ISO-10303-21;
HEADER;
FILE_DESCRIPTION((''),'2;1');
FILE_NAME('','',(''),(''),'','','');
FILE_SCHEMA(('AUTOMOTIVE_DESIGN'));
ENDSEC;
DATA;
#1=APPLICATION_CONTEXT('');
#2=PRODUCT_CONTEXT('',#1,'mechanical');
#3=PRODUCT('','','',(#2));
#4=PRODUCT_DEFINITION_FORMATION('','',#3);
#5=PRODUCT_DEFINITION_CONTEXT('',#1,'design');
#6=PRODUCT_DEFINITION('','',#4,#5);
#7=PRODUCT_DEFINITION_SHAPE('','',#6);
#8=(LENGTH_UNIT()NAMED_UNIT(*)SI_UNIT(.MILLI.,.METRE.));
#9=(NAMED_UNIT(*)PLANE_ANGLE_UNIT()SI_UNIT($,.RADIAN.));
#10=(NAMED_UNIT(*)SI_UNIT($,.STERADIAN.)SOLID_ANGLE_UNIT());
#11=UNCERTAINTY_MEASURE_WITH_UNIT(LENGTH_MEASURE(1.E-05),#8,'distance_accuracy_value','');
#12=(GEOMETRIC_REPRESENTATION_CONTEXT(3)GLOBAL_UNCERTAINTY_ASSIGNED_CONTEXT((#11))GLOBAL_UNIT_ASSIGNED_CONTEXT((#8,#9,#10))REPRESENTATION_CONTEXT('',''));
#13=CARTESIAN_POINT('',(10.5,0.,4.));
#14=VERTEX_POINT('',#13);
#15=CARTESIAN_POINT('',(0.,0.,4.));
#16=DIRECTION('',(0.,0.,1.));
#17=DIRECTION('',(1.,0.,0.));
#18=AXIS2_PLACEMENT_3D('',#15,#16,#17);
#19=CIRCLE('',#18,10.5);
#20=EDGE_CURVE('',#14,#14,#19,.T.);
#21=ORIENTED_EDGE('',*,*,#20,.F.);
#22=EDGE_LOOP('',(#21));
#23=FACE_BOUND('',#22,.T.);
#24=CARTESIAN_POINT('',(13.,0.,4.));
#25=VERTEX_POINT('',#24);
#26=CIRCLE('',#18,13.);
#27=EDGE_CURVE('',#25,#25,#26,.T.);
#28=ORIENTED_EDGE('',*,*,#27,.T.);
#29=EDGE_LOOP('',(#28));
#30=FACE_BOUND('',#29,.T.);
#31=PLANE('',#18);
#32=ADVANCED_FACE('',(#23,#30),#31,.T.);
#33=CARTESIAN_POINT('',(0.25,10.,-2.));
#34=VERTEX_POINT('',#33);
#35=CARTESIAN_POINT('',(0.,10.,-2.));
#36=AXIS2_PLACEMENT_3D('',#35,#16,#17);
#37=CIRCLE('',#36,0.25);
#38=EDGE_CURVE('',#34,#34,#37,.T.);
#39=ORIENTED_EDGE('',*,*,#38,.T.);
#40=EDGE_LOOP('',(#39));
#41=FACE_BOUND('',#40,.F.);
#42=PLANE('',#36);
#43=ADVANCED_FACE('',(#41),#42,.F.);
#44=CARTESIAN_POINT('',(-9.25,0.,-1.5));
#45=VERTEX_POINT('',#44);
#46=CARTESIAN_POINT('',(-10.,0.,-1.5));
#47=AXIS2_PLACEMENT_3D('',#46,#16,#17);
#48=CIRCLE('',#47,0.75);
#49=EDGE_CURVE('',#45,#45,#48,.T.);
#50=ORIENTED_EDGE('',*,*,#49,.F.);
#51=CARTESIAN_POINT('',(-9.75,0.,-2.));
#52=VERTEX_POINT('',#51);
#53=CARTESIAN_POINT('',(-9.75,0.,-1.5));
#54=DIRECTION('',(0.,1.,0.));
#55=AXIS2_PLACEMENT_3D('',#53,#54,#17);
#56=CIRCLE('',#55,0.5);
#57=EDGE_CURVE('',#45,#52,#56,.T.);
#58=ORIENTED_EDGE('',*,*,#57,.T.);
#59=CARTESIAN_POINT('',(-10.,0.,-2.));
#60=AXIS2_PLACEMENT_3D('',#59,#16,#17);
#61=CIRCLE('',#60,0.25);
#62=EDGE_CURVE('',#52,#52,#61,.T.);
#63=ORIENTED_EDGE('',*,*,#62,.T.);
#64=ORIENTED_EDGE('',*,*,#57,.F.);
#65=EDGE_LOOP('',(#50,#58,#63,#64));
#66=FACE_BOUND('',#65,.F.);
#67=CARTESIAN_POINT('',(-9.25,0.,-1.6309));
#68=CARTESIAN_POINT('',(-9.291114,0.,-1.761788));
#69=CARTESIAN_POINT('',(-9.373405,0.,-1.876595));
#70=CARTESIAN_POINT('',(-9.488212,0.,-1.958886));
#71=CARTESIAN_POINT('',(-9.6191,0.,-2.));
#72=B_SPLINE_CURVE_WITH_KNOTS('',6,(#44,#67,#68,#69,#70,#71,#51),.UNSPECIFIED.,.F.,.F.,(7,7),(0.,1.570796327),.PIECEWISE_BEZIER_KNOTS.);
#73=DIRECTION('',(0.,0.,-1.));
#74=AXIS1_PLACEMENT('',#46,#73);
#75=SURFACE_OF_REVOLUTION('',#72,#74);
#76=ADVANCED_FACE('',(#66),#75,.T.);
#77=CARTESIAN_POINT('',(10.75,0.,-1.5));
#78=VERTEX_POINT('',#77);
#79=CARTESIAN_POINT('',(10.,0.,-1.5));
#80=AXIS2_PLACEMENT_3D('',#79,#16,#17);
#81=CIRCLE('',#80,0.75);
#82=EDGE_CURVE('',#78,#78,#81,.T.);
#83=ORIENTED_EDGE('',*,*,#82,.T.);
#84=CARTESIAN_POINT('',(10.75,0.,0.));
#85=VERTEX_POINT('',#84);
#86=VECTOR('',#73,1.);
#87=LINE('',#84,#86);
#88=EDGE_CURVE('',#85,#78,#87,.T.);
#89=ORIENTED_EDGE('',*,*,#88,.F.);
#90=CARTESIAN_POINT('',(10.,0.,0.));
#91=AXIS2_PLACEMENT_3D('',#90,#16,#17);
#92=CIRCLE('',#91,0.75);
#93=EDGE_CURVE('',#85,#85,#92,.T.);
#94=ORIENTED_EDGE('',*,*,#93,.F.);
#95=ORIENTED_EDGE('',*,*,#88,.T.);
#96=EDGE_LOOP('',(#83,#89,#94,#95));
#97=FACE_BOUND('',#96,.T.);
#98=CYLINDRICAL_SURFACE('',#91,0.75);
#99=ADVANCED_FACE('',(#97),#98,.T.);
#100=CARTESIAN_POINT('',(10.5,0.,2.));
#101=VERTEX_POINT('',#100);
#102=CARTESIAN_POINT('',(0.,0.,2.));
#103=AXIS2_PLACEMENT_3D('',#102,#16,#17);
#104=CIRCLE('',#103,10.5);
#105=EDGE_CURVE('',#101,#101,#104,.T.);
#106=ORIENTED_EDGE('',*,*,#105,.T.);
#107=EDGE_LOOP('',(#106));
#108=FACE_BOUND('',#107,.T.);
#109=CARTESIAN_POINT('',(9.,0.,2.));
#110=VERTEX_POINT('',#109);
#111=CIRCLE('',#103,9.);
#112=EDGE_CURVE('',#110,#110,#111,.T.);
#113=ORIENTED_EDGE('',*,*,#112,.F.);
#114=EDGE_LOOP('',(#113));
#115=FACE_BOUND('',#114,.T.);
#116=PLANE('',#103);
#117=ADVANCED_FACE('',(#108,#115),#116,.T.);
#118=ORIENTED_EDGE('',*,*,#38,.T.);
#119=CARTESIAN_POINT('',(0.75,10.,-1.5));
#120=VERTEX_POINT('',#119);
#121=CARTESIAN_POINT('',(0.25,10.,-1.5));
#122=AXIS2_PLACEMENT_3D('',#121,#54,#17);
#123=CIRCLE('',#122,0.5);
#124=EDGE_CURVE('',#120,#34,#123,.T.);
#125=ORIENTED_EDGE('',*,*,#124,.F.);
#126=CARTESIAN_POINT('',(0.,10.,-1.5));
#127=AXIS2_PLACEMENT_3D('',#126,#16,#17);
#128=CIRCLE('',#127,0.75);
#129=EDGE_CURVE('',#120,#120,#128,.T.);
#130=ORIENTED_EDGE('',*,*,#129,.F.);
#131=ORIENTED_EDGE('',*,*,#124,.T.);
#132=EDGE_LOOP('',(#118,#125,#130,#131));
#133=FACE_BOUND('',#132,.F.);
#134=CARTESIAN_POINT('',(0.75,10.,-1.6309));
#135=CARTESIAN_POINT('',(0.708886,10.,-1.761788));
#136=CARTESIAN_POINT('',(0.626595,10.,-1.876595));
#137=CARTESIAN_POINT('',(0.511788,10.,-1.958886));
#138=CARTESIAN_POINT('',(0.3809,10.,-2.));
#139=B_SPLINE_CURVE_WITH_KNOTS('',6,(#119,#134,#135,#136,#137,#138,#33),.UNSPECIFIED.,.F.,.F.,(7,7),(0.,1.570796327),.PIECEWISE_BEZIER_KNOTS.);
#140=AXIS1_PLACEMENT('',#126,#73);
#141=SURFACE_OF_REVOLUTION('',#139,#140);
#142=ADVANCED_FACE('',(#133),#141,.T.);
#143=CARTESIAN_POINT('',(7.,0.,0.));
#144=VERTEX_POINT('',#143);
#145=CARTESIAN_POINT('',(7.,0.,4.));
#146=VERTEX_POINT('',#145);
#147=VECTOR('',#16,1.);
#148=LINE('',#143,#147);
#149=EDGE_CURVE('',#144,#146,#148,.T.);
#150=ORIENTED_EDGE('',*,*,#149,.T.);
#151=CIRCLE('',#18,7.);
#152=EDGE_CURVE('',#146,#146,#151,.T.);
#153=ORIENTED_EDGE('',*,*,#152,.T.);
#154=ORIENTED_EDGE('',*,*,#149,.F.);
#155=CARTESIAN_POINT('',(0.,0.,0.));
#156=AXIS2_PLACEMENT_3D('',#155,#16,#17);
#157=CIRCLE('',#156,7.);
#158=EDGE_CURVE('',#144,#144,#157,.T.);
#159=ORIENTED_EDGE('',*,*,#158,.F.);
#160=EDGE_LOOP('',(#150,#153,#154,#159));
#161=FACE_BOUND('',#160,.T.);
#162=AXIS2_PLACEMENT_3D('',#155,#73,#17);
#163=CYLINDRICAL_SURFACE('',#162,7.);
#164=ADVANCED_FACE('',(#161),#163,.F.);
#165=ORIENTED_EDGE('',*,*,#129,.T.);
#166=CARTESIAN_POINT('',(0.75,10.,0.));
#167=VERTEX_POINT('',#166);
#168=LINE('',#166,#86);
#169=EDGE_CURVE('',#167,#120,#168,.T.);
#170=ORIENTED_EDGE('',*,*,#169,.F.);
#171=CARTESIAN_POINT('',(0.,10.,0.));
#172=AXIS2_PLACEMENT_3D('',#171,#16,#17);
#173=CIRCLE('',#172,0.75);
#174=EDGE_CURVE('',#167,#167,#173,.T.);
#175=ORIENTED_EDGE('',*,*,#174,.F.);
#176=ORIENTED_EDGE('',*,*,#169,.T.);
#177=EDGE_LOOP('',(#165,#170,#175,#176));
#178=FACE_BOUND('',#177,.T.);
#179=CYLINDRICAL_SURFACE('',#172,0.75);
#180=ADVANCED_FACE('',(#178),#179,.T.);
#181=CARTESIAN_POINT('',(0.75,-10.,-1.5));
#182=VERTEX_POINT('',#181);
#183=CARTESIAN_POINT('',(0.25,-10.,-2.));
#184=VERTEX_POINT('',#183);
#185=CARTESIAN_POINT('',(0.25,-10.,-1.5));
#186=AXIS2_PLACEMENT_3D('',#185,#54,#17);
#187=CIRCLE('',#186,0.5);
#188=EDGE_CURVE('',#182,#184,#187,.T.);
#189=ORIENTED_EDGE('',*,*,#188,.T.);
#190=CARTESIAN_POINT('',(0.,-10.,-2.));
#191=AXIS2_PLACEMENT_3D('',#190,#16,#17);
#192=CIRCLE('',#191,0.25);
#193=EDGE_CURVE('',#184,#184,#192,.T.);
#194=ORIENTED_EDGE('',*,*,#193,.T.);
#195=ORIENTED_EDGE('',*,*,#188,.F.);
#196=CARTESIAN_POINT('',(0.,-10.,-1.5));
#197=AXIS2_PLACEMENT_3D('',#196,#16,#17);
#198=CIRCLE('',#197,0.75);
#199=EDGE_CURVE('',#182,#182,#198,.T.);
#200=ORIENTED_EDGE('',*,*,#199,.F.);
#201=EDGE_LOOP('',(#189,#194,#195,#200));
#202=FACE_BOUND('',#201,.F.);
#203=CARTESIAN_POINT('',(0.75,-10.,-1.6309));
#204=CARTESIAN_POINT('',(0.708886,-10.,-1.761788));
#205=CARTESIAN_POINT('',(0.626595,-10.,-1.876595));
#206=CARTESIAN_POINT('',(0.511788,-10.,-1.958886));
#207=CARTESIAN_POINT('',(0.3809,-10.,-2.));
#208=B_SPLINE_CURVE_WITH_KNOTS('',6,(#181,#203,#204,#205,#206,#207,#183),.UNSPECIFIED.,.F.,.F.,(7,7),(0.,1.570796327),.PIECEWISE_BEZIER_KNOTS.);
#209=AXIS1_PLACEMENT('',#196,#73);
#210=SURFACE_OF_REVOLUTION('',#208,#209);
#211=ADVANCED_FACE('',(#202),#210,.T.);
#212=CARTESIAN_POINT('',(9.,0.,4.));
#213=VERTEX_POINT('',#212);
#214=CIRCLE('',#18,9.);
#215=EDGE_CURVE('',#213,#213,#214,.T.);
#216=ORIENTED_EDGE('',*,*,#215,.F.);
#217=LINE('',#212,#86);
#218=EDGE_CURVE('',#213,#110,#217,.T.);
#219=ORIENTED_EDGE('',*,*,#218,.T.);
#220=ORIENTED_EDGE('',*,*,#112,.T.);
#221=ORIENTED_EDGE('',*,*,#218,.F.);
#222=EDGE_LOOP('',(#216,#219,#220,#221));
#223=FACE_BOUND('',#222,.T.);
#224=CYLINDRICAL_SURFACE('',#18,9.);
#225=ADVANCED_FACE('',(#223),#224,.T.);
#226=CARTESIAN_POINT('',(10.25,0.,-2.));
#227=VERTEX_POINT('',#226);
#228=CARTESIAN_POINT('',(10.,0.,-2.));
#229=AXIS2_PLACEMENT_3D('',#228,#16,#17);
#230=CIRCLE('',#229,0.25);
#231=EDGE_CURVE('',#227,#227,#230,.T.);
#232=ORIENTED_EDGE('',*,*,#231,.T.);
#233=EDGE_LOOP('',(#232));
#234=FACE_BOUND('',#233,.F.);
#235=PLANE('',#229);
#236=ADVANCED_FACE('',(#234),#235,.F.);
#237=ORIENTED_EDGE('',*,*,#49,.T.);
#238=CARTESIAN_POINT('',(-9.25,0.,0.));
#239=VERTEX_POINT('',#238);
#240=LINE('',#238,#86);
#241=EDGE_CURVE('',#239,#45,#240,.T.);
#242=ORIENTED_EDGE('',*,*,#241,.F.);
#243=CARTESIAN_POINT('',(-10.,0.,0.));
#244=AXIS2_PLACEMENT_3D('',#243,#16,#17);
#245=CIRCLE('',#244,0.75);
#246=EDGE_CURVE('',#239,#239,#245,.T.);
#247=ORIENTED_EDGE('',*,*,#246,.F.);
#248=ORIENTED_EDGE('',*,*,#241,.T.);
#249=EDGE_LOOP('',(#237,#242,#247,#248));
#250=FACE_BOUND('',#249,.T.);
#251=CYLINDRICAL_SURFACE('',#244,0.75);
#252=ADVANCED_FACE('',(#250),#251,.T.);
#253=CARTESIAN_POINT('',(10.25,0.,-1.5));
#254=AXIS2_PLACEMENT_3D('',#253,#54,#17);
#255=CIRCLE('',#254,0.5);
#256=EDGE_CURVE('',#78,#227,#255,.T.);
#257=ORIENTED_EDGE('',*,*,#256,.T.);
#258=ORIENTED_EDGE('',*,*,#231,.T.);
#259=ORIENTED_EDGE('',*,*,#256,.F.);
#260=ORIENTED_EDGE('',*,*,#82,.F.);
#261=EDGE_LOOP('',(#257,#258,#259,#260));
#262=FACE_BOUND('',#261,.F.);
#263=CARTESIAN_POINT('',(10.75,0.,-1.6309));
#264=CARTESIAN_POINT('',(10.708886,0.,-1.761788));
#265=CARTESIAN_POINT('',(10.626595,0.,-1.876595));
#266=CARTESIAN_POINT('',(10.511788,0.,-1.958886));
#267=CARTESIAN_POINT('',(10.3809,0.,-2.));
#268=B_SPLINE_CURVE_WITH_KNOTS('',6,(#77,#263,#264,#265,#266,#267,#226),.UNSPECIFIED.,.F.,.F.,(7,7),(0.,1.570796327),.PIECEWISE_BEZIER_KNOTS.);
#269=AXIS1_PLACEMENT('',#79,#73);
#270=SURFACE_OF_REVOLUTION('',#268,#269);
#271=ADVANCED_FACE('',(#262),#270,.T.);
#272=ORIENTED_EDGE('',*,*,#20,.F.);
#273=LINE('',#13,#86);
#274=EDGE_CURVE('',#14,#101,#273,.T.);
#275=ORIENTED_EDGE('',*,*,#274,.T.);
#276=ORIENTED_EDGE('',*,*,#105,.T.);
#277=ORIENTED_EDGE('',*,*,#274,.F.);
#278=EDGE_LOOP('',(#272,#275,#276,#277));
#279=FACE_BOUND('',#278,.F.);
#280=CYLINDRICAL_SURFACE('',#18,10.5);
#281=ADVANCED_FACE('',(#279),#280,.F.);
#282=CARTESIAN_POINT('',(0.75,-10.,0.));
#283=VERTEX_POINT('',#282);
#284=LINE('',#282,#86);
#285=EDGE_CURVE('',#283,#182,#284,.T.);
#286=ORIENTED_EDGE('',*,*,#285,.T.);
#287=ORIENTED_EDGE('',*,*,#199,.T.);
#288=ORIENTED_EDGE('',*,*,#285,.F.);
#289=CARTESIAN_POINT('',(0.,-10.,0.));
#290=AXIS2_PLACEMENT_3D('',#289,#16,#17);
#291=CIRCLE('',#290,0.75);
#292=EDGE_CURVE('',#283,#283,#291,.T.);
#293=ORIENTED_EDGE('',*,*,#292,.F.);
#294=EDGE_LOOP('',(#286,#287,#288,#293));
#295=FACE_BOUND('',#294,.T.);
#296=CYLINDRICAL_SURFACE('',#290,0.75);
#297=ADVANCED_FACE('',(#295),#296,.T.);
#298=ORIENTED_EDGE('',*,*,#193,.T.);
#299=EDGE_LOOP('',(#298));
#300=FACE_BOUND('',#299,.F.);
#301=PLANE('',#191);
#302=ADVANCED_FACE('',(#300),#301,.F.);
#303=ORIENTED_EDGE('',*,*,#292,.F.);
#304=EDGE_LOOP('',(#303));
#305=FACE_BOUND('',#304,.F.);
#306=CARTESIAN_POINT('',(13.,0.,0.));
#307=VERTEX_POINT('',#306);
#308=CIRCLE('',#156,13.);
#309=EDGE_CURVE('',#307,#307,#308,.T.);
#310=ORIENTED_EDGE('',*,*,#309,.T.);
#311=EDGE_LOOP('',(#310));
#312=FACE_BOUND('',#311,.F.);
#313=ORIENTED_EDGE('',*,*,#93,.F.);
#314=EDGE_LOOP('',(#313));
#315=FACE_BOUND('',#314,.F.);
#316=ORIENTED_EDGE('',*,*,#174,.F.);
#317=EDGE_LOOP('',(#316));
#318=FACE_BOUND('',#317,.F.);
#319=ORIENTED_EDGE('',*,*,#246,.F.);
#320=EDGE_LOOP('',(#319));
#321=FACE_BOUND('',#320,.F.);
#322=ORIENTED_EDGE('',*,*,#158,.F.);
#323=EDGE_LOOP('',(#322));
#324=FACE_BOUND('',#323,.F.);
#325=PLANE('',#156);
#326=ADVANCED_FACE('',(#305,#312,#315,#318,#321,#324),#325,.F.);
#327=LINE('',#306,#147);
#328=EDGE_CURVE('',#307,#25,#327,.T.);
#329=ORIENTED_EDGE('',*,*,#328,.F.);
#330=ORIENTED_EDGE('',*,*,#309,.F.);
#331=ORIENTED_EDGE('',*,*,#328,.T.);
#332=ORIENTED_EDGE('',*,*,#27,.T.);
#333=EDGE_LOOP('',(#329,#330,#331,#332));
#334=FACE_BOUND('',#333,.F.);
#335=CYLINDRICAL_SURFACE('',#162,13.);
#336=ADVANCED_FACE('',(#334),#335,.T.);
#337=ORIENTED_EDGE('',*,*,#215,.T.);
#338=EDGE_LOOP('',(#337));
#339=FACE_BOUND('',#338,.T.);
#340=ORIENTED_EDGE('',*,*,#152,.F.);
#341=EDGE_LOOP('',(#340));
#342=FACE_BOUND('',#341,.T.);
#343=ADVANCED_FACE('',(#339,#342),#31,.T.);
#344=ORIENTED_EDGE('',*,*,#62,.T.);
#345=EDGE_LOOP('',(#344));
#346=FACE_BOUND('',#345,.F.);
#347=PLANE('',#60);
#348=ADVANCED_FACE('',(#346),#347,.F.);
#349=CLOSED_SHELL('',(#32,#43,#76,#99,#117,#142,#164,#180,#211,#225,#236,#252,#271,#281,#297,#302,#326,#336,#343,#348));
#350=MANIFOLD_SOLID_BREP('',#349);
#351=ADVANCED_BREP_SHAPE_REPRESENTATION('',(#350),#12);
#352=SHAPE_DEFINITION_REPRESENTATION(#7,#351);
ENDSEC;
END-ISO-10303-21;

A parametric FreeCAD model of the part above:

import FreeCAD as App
import Part
import Sketcher

V = App.Vector


def edges_at(feature, points):
    """Names of the edges that pass closest to the given points."""
    edges = feature.Shape.Edges
    near = lambda p: min(range(len(edges)), key=lambda i: edges[i].distToShape(Part.Vertex(*p))[0])
    return sorted({f"Edge{near(p) + 1}" for p in points})

doc = App.newDocument("Part")
body = doc.addObject("PartDesign::Body", "Body")

# Sketch on XY plane
sketch1 = body.newObject("Sketcher::SketchObject", "Sketch")
sketch1.AttachmentSupport = (doc.getObject("XY_Plane"), [""])
sketch1.MapMode = "FlatFace"
sketch1.addGeometry(Part.Circle(V(0, 0, 0), V(0, 0, 1), 13), False)
sketch1.addGeometry(Part.Circle(V(0, 0, 0), V(0, 0, 1), 7), False)
sketch1.addConstraint(Sketcher.Constraint("Coincident", 0, 3, -1, 1))
sketch1.addConstraint(Sketcher.Constraint("Coincident", 1, 3, -1, 1))
sketch1.addConstraint(Sketcher.Constraint("Diameter", 0, 26.0))
sketch1.addConstraint(Sketcher.Constraint("Diameter", 1, 14.0))
pad1 = body.newObject("PartDesign::Pad", "Pad")
pad1.Profile = sketch1
pad1.Length = 4

# Sketch on XY plane
sketch2 = body.newObject("Sketcher::SketchObject", "Sketch001")
sketch2.AttachmentSupport = (doc.getObject("XY_Plane"), [""])
sketch2.MapMode = "FlatFace"
sketch2.addGeometry(Part.Circle(V(0, -10, 0), V(0, 0, 1), 0.8), False)
sketch2.addGeometry(Part.Circle(V(-10, 0, 0), V(0, 0, 1), 0.8), False)
sketch2.addGeometry(Part.Circle(V(0, 10, 0), V(0, 0, 1), 0.8), False)
sketch2.addGeometry(Part.Circle(V(10, 0, 0), V(0, 0, 1), 0.8), False)
sketch2.addConstraint(Sketcher.Constraint("Equal", 0, 1))
sketch2.addConstraint(Sketcher.Constraint("Equal", 1, 2))
sketch2.addConstraint(Sketcher.Constraint("Equal", 2, 3))
sketch2.addConstraint(Sketcher.Constraint("Symmetric", 0, 3, 2, 3, -1, 1))
sketch2.addConstraint(Sketcher.Constraint("Symmetric", 1, 3, 3, 3, -1, 1))
sketch2.addConstraint(Sketcher.Constraint("PointOnObject", 0, 3, -2))
sketch2.addConstraint(Sketcher.Constraint("PointOnObject", 1, 3, -1))
sketch2.addConstraint(Sketcher.Constraint("Diameter", 0, 1.5))
sketch2.addConstraint(Sketcher.Constraint("DistanceY", 0, 3, -1, 1, 10.0))
sketch2.addConstraint(Sketcher.Constraint("DistanceX", 1, 3, -1, 1, 10.0))
pad2 = body.newObject("PartDesign::Pad", "Pad001")
pad2.Profile = sketch2
pad2.Length = 2
pad2.Reversed = True
doc.recompute()

fillet = body.newObject("PartDesign::Fillet", "Fillet")
fillet.Base = (pad2, edges_at(pad2, [
    (-10.75, 0, -2),
    (-0.75, -10, -2),
    (9.25, 0, -2),
    (-0.75, 10, -2),
]))
fillet.Radius = 0.5

# Sketch on XY plane
sketch3 = body.newObject("Sketcher::SketchObject", "Sketch002")
sketch3.AttachmentSupport = (doc.getObject("XY_Plane"), [""])
sketch3.MapMode = "FlatFace"
sketch3.AttachmentOffset = App.Placement(V(0, 0, 4), App.Rotation())
sketch3.addGeometry(Part.Circle(V(0, 0, 0), V(0, 0, 1), 10), False)
sketch3.addGeometry(Part.Circle(V(0, 0, 0), V(0, 0, 1), 9), False)
sketch3.addConstraint(Sketcher.Constraint("Coincident", 0, 3, -1, 1))
sketch3.addConstraint(Sketcher.Constraint("Coincident", 1, 3, -1, 1))
sketch3.addConstraint(Sketcher.Constraint("Diameter", 0, 21.0))
sketch3.addConstraint(Sketcher.Constraint("Diameter", 1, 18.0))
pocket1 = body.newObject("PartDesign::Pocket", "Pocket")
pocket1.Profile = sketch3
pocket1.Length = 2

doc.recompute()
